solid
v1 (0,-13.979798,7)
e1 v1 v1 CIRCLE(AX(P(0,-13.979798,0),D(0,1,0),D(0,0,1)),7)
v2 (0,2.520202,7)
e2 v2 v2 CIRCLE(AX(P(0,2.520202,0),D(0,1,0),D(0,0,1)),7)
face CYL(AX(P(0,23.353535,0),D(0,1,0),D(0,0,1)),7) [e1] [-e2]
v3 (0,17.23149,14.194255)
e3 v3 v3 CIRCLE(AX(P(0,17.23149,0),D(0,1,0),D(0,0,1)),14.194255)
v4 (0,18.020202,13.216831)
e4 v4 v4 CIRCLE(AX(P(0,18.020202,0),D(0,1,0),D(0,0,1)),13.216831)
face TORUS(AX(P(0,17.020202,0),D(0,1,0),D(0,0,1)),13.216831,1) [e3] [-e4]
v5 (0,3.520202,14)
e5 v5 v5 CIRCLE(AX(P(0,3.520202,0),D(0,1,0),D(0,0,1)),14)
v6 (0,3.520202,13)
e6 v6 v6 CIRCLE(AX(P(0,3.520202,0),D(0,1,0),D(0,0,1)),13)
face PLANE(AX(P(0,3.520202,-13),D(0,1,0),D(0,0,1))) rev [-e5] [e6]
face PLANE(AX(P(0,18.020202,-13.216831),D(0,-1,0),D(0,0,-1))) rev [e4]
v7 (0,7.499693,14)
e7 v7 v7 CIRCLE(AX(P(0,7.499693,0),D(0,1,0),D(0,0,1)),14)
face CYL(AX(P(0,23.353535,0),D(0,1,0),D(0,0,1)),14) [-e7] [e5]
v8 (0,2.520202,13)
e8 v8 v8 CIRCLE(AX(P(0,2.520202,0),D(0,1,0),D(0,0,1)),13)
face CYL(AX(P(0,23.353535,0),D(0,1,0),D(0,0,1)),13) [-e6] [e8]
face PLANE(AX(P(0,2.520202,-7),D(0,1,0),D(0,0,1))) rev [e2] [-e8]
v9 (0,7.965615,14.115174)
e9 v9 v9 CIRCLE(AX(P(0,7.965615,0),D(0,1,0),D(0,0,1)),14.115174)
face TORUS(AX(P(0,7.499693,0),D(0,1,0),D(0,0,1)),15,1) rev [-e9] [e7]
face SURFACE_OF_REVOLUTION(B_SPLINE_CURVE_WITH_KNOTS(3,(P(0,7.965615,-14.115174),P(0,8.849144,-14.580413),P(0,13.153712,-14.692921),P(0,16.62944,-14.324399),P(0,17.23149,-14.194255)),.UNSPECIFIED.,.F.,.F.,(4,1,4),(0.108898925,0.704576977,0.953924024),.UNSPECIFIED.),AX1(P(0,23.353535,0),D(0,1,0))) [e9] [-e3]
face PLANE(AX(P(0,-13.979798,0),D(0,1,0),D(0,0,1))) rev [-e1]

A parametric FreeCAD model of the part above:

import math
import FreeCAD as App
import Part
import Sketcher

V = App.Vector
Q = App.Units.Quantity

doc = App.newDocument("Part")
params = doc.addObject("Spreadsheet::Sheet", "Params")
for row, (alias, value) in enumerate([
    ("sketch1_radius", "1 mm"),
    ("sketch1_radius2", "1 mm"),
    ("sketch1_width", "32 mm"),
    ("sketch1_width2", "1 mm"),
    ("sketch1_height", "7 mm"),
    ("revolution_angle", "360 deg"),
], start=1):
    params.set(f"A{row}", alias)
    params.set(f"B{row}", "=" + value)
    params.setAlias(f"B{row}", alias)

body = doc.addObject("PartDesign::Body", "Body")

sketch1 = body.newObject("Sketcher::SketchObject", "Sketch")
sketch1.AttachmentSupport = (doc.getObject("YZ_Plane"), [""])
sketch1.MapMode = "FlatFace"
sketch1.addGeometry([
    Part.LineSegment(V(18.020202, 0, 0), V(-13.979798, 0, 0)),
    Part.LineSegment(V(-13.979798, 0, 0), V(-13.979798, -7, 0)),
    Part.LineSegment(V(-13.979798, -7, 0), V(2.520202, -7, 0)),
    Part.LineSegment(V(2.520202, -7, 0), V(2.520202, -13, 0)),
    Part.LineSegment(V(2.520202, -13, 0), V(3.520202, -13, 0)),
    Part.LineSegment(V(3.520202, -13, 0), V(3.520202, -14, 0)),
    Part.LineSegment(V(3.520202, -14, 0), V(7.499693, -14, 0)),
    Part.ArcOfCircle(Part.Circle(V(7.499693, -15, 0), V(0, 0, 1), 1), math.radians(62.230085), math.radians(90)),
    Part.BSplineCurve([V(17.23149, -14.194255, 0), V(16.62944, -14.324399, 0), V(13.153712, -14.692921, 0), V(8.849144, -14.580413, 0), V(7.965615, -14.115174, 0)], [4, 1, 4], [0.108898925, 0.358245971, 0.953924024], False, 3, [1, 1, 1, 1, 1], False),
    Part.ArcOfCircle(Part.Circle(V(17.020202, -13.216831, 0), V(0, 0, 1), 1), math.radians(-77.802179), math.radians(0)),
    Part.LineSegment(V(18.020202, -13.216831, 0), V(18.020202, 0, 0)),
], False)
sketch1.addConstraint([
    Sketcher.Constraint("Block", 8),
    Sketcher.Constraint("Coincident", 0, 2, 1, 1),
    Sketcher.Constraint("Coincident", 1, 2, 2, 1),
    Sketcher.Constraint("Coincident", 2, 2, 3, 1),
    Sketcher.Constraint("Coincident", 3, 2, 4, 1),
    Sketcher.Constraint("Coincident", 4, 2, 5, 1),
    Sketcher.Constraint("Coincident", 5, 2, 6, 1),
    Sketcher.Constraint("Coincident", 6, 2, 7, 2),
    Sketcher.Constraint("Coincident", 7, 1, 8, 2),
    Sketcher.Constraint("Coincident", 8, 1, 9, 1),
    Sketcher.Constraint("Coincident", 9, 2, 10, 1),
    Sketcher.Constraint("Coincident", 10, 2, 0, 1),
    Sketcher.Constraint("Horizontal", 0),
    Sketcher.Constraint("Vertical", 1),
    Sketcher.Constraint("Horizontal", 2),
    Sketcher.Constraint("Vertical", 3),
    Sketcher.Constraint("Horizontal", 4),
    Sketcher.Constraint("Vertical", 5),
    Sketcher.Constraint("Horizontal", 6),
    Sketcher.Constraint("Vertical", 10),
    Sketcher.Constraint("PointOnObject", 0, 2, -1),
    Sketcher.Constraint("Radius", 7, Q("1 mm")),
    Sketcher.Constraint("Radius", 9, Q("1 mm")),
    Sketcher.Constraint("DistanceX", 0, 2, 0, 1, Q("32 mm")),
    Sketcher.Constraint("DistanceX", 4, 1, 4, 2, Q("1 mm")),
    Sketcher.Constraint("DistanceY", 1, 2, 1, 1, Q("7 mm")),
    Sketcher.Constraint("DistanceY", 3, 2, 3, 1, Q("6 mm")),
    Sketcher.Constraint("DistanceY", 5, 2, 5, 1, Q("1 mm")),
    Sketcher.Constraint("DistanceX", 2, 1, 2, 2, Q("16.5 mm")),
    Sketcher.Constraint("DistanceX", 6, 1, 6, 2, Q("3.979491 mm")),
    Sketcher.Constraint("DistanceY", 10, 1, 10, 2, Q("13.216831 mm")),
    Sketcher.Constraint("DistanceY", 9, 3, -1, 1, Q("13.216831 mm")),
])
sketch1.setExpression("Constraints[21]", "Params.sketch1_radius")
sketch1.setExpression("Constraints[22]", "Params.sketch1_radius2")
sketch1.setExpression("Constraints[23]", "Params.sketch1_width")
sketch1.setExpression("Constraints[24]", "Params.sketch1_width2")
sketch1.setExpression("Constraints[25]", "Params.sketch1_height")
revolution = body.newObject("PartDesign::Revolution", "Revolution")
revolution.Profile = sketch1
revolution.ReferenceAxis = (sketch1, ["H_Axis"])
revolution.setExpression("Angle", "Params.revolution_angle")

doc.recompute()
